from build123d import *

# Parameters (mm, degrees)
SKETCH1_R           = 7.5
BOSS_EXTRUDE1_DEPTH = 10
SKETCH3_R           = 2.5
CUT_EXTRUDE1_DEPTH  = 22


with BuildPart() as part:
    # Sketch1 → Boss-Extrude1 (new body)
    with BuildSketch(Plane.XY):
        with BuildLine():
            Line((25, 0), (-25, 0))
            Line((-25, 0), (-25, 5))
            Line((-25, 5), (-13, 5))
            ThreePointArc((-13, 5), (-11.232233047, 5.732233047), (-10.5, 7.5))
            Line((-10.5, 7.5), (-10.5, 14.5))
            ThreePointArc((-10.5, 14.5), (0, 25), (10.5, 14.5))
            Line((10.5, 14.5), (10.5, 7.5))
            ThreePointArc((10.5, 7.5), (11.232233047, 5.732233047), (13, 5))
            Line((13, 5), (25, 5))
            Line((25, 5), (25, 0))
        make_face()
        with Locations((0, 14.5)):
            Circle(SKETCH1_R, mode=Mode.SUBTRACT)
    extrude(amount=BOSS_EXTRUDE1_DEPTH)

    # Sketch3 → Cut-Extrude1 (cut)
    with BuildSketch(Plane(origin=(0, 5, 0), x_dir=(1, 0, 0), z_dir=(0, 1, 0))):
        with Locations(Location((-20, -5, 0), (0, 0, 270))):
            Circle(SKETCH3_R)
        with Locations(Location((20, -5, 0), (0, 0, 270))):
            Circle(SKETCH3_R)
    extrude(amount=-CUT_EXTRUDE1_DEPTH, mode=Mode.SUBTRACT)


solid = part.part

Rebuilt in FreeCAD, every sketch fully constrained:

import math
import FreeCAD as App
import Part
import Sketcher

V = App.Vector

doc = App.newDocument("Part")
body = doc.addObject("PartDesign::Body", "Body")

# Sketch on XY plane
sketch1 = body.newObject("Sketcher::SketchObject", "Sketch")
sketch1.AttachmentSupport = (doc.getObject("XY_Plane"), [""])
sketch1.MapMode = "FlatFace"
sketch1.addGeometry([
    Part.LineSegment(V(-25, 0, 0), V(25, 0, 0)),  # 0
    Part.LineSegment(V(25, 0, 0), V(25, 5, 0)),  # 1
    Part.LineSegment(V(25, 5, 0), V(13, 5, 0)),  # 2
    Part.ArcOfCircle(Part.Circle(V(13, 7.5, 0), V(0, 0, 1), 2.5), math.radians(180), math.radians(270)),  # 3
    Part.LineSegment(V(10.5, 7.5, 0), V(10.5, 14.5, 0)),  # 4
    Part.ArcOfCircle(Part.Circle(V(0, 14.5, 0), V(0, 0, 1), 10.5), math.radians(0), math.radians(180)),  # 5
    Part.LineSegment(V(-10.5, 14.5, 0), V(-10.5, 7.5, 0)),  # 6
    Part.ArcOfCircle(Part.Circle(V(-13, 7.5, 0), V(0, 0, 1), 2.5), math.radians(-90), math.radians(0)),  # 7
    Part.LineSegment(V(-13, 5, 0), V(-25, 5, 0)),  # 8
    Part.LineSegment(V(-25, 5, 0), V(-25, 0, 0)),  # 9
    Part.Circle(V(0, 14.5, 0), V(0, 0, 1), 7.5),  # 10
], False)
sketch1.addConstraint([
    Sketcher.Constraint("Coincident", 0, 2, 1, 1),
    Sketcher.Constraint("Coincident", 1, 2, 2, 1),
    Sketcher.Constraint("Tangent", 2, 2, 3, 2),
    Sketcher.Constraint("Tangent", 3, 1, 4, 1),
    Sketcher.Constraint("Tangent", 4, 2, 5, 1),
    Sketcher.Constraint("Tangent", 5, 2, 6, 1),
    Sketcher.Constraint("Tangent", 6, 2, 7, 2),
    Sketcher.Constraint("Tangent", 7, 1, 8, 1),
    Sketcher.Constraint("Coincident", 8, 2, 9, 1),
    Sketcher.Constraint("Coincident", 9, 2, 0, 1),
    Sketcher.Constraint("Horizontal", 0),
    Sketcher.Constraint("Vertical", 1),
    Sketcher.Constraint("Horizontal", 2),
    Sketcher.Constraint("Vertical", 4),
    Sketcher.Constraint("Vertical", 6),
    Sketcher.Constraint("Horizontal", 8),
    Sketcher.Constraint("Vertical", 9),
    Sketcher.Constraint("Coincident", 10, 3, 5, 3),
    Sketcher.Constraint("Equal", 3, 7),
    Sketcher.Constraint("Symmetric", 0, 2, 9, 2, -1, 1),
    Sketcher.Constraint("Symmetric", 3, 3, 7, 3, -2),
    Sketcher.Constraint("Diameter", 10, 15.0),
    Sketcher.Constraint("Radius", 3, 2.5),
    Sketcher.Constraint("Radius", 5, 10.5),
    Sketcher.Constraint("DistanceX", 0, 1, 0, 2, 50.0),
    Sketcher.Constraint("DistanceY", 1, 1, 1, 2, 5.0),
    Sketcher.Constraint("DistanceY", 4, 1, 4, 2, 7.0),
])
pad1 = body.newObject("PartDesign::Pad", "Pad")
pad1.Profile = sketch1
pad1.Length = 10

# Sketch on XZ plane
sketch2 = body.newObject("Sketcher::SketchObject", "Sketch001")
sketch2.AttachmentSupport = (doc.getObject("XZ_Plane"), [""])
sketch2.MapMode = "FlatFace"
sketch2.AttachmentOffset = App.Placement(V(0, 0, -5), App.Rotation())
sketch2.addGeometry([
    Part.Circle(V(-20, 5, 0), V(0, 0, 1), 2.5),
    Part.Circle(V(20, 5, 0), V(0, 0, 1), 2.5),
], False)
sketch2.addConstraint([
    Sketcher.Constraint("Equal", 0, 1),
    Sketcher.Constraint("Symmetric", 0, 3, 1, 3, -2),
    Sketcher.Constraint("Diameter", 0, 5.0),
    Sketcher.Constraint("DistanceX", 0, 3, -1, 1, 20.0),
    Sketcher.Constraint("DistanceY", -1, 1, 0, 3, 5.0),
])
pocket1 = body.newObject("PartDesign::Pocket", "Pocket")
pocket1.Profile = sketch2
pocket1.Length = 22
pocket1.Reversed = True

doc.recompute()
